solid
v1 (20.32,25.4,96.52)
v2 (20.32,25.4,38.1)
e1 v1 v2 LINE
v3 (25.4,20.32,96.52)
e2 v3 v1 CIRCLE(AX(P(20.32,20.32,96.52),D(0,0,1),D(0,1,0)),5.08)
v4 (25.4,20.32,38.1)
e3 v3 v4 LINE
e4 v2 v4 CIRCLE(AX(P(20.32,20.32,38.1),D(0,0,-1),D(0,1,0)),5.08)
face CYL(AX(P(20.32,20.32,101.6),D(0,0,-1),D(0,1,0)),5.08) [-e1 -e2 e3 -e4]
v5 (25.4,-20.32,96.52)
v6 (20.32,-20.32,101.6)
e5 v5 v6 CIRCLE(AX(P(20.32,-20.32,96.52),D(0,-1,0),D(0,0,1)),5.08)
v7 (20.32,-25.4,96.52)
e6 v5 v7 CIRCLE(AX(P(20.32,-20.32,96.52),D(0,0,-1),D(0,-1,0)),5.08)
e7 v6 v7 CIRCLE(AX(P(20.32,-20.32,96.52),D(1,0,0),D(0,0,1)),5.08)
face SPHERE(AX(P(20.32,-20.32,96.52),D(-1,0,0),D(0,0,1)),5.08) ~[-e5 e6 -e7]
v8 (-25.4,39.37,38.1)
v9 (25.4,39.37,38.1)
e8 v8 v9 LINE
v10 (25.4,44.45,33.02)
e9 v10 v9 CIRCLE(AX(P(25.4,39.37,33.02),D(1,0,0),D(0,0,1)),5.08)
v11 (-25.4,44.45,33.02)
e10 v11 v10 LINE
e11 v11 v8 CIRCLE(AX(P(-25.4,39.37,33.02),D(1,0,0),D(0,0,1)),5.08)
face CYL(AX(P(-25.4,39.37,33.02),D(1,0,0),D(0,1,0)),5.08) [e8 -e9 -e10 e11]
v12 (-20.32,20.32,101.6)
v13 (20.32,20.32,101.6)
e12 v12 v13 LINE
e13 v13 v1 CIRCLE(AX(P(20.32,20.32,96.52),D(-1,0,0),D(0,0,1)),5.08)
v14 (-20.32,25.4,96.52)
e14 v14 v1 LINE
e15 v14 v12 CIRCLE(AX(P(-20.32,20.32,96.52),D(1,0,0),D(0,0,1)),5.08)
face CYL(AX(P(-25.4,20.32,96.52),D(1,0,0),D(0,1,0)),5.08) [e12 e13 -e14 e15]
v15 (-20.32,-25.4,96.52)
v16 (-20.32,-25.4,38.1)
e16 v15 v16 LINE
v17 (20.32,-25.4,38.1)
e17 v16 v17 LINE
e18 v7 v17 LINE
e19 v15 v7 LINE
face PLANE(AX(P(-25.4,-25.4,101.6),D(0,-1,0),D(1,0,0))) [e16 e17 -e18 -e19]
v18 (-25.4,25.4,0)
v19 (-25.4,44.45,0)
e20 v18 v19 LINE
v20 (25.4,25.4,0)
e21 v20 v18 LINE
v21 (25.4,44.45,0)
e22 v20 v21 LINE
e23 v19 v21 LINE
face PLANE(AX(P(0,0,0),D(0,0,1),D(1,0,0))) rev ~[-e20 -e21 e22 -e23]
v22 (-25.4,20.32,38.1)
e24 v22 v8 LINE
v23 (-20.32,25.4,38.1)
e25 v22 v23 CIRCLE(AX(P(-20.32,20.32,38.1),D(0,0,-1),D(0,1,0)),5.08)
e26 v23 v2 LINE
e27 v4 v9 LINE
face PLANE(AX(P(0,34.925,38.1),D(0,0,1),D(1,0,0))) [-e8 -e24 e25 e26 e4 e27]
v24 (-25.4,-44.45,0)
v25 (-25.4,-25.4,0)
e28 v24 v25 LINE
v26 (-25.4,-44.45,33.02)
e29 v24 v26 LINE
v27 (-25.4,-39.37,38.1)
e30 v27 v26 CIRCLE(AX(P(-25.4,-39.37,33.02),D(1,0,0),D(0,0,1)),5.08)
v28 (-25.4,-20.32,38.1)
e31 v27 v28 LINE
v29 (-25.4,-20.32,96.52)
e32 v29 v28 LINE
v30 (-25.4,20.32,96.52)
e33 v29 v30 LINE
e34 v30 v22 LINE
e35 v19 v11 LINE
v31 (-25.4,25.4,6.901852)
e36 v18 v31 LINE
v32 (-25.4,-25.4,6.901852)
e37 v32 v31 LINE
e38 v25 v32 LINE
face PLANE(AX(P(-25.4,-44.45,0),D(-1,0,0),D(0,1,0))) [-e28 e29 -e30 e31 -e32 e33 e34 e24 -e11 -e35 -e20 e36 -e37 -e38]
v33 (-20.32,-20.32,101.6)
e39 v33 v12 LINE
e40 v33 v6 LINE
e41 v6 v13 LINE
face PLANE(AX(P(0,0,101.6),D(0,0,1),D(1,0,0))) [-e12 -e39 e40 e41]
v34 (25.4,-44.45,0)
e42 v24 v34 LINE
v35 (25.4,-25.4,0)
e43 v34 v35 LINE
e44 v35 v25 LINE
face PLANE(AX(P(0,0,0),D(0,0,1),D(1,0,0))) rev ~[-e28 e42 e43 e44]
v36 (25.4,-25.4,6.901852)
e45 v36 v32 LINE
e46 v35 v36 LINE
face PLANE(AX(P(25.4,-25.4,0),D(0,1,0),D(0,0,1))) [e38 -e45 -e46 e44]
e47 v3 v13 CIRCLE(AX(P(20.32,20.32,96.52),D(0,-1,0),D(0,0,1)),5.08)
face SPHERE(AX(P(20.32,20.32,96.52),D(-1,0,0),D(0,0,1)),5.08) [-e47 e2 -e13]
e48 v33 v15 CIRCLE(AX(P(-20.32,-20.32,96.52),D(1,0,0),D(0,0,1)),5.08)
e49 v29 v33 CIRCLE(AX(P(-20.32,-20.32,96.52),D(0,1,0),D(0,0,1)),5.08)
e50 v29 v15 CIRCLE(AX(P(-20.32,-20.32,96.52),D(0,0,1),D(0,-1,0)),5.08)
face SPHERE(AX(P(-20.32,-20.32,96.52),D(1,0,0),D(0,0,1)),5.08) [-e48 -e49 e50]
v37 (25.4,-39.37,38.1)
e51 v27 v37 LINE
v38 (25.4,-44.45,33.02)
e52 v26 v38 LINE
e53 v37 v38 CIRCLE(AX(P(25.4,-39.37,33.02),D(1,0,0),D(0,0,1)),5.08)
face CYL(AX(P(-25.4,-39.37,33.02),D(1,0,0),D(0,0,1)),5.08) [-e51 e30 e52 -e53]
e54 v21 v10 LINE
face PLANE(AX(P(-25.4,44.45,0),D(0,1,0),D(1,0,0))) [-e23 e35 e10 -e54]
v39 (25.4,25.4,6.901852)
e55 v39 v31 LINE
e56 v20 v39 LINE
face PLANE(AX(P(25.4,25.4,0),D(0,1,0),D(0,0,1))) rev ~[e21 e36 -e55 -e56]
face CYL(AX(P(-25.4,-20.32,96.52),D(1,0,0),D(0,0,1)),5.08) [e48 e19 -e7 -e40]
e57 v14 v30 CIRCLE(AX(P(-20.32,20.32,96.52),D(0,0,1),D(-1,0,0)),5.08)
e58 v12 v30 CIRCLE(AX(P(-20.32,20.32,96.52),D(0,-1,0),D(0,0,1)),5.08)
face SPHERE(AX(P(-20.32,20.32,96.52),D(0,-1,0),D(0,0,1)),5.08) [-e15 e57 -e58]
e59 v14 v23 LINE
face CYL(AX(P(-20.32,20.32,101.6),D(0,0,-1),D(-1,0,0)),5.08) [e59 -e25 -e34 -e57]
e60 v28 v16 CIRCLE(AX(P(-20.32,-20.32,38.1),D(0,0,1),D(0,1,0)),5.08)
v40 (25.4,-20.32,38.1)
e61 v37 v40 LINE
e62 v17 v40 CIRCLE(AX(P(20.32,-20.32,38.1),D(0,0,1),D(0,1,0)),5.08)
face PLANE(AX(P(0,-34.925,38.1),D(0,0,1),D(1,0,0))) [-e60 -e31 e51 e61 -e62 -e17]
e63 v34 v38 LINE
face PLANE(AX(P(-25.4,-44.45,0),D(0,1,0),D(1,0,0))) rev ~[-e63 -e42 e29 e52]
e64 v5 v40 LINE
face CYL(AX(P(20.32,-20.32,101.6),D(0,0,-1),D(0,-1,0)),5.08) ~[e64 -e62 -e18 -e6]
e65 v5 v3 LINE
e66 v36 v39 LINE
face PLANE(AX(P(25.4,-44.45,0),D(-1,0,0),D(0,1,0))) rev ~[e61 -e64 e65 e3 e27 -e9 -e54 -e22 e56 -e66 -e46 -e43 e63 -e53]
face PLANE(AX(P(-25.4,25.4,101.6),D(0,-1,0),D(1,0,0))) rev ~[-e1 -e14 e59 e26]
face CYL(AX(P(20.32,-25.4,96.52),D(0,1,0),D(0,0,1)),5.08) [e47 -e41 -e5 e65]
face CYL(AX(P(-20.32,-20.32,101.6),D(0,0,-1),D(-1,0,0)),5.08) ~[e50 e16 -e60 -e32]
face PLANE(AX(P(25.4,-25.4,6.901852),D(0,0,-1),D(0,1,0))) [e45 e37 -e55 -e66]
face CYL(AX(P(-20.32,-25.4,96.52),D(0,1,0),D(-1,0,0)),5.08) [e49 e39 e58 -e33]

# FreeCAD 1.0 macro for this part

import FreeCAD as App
import Part
import Sketcher
from FreeCAD import Vector
Q = App.Units.Quantity


def edges_at(feature, points):
    """Names of the edges that pass closest to the given points."""
    edges = feature.Shape.Edges
    near = lambda p: min(range(len(edges)), key=lambda i: edges[i].distToShape(Part.Vertex(*p))[0])
    return sorted({f"Edge{near(p) + 1}" for p in points})

doc = App.newDocument("Part")
body = doc.addObject("PartDesign::Body", "Body")

sketch1 = body.newObject("Sketcher::SketchObject", "Sketch")
sketch1.AttachmentSupport = (doc.getObject("XY_Plane"), [""])
sketch1.MapMode = "FlatFace"
sketch1.addGeometry([
    Part.LineSegment(Vector(-25.4, 44.45, 0), Vector(-25.4, -44.45, 0)),
    Part.LineSegment(Vector(-25.4, -44.45, 0), Vector(25.4, -44.45, 0)),
    Part.LineSegment(Vector(25.4, -44.45, 0), Vector(25.4, 44.45, 0)),
    Part.LineSegment(Vector(25.4, 44.45, 0), Vector(-25.4, 44.45, 0)),
], False)
sketch1.addConstraint([
    Sketcher.Constraint("Coincident", 0, 2, 1, 1),
    Sketcher.Constraint("Coincident", 1, 2, 2, 1),
    Sketcher.Constraint("Coincident", 2, 2, 3, 1),
    Sketcher.Constraint("Coincident", 3, 2, 0, 1),
    Sketcher.Constraint("Vertical", 0),
    Sketcher.Constraint("Horizontal", 1),
    Sketcher.Constraint("Vertical", 2),
    Sketcher.Constraint("Horizontal", 3),
    Sketcher.Constraint("Symmetric", 0, 2, 2, 2, -1, 1),
    Sketcher.Constraint("DistanceX", 1, 1, 1, 2, Q("2 in")),
    Sketcher.Constraint("DistanceY", 0, 2, 0, 1, Q("3.5 in")),
])
pad1 = body.newObject("PartDesign::Pad", "Pad")
pad1.Profile = sketch1
pad1.Length = Q("4 in")

sketch2 = body.newObject("Sketcher::SketchObject", "Sketch001")
sketch2.AttachmentSupport = (doc.getObject("XY_Plane"), [""])
sketch2.MapMode = "FlatFace"
sketch2.AttachmentOffset = App.Placement(Vector(0, 0, 4 * 25.4), App.Rotation())
sketch2.addGeometry([
    Part.LineSegment(Vector(-25.4, -25.4, 0), Vector(-25.4, -44.45, 0)),
    Part.LineSegment(Vector(-25.4, -44.45, 0), Vector(25.4, -44.45, 0)),
    Part.LineSegment(Vector(25.4, -44.45, 0), Vector(25.4, -25.4, 0)),
    Part.LineSegment(Vector(25.4, -25.4, 0), Vector(-25.4, -25.4, 0)),
    Part.LineSegment(Vector(-25.4, 44.45, 0), Vector(-25.4, 25.4, 0)),
    Part.LineSegment(Vector(-25.4, 25.4, 0), Vector(25.4, 25.4, 0)),
    Part.LineSegment(Vector(25.4, 25.4, 0), Vector(25.4, 44.45, 0)),
    Part.LineSegment(Vector(25.4, 44.45, 0), Vector(-25.4, 44.45, 0)),
], False)
sketch2.addConstraint([
    Sketcher.Constraint("Coincident", 0, 2, 1, 1),
    Sketcher.Constraint("Coincident", 1, 2, 2, 1),
    Sketcher.Constraint("Coincident", 2, 2, 3, 1),
    Sketcher.Constraint("Coincident", 3, 2, 0, 1),
    Sketcher.Constraint("Coincident", 4, 2, 5, 1),
    Sketcher.Constraint("Coincident", 5, 2, 6, 1),
    Sketcher.Constraint("Coincident", 6, 2, 7, 1),
    Sketcher.Constraint("Coincident", 7, 2, 4, 1),
    Sketcher.Constraint("Vertical", 0),
    Sketcher.Constraint("Horizontal", 1),
    Sketcher.Constraint("Vertical", 2),
    Sketcher.Constraint("Horizontal", 3),
    Sketcher.Constraint("Vertical", 4),
    Sketcher.Constraint("Horizontal", 5),
    Sketcher.Constraint("Vertical", 6),
    Sketcher.Constraint("Horizontal", 7),
    Sketcher.Constraint("Symmetric", 2, 2, 4, 2, -1, 1),
    Sketcher.Constraint("Symmetric", 0, 2, 6, 2, -1, 1),
    Sketcher.Constraint("Vertical", 3, 2, 4, 2),
    Sketcher.Constraint("DistanceX", 1, 1, 1, 2, Q("2 in")),
    Sketcher.Constraint("DistanceY", 2, 2, -1, 1, Q("1 in")),
    Sketcher.Constraint("DistanceY", 0, 2, 0, 1, Q("0.75 in")),
])
pocket1 = body.newObject("PartDesign::Pocket", "Pocket")
pocket1.Profile = sketch2
pocket1.Length = Q("2.5 in")

sketch3 = body.newObject("Sketcher::SketchObject", "Sketch002")
sketch3.AttachmentSupport = (doc.getObject("YZ_Plane"), [""])
sketch3.MapMode = "FlatFace"
sketch3.AttachmentOffset = App.Placement(Vector(0, 0, 1 * 25.4), App.Rotation())
sketch3.addGeometry([
    Part.LineSegment(Vector(-25.4, 6.901852, 0), Vector(-25.4, 0, 0)),
    Part.LineSegment(Vector(-25.4, 0, 0), Vector(25.4, 0, 0)),
    Part.LineSegment(Vector(25.4, 0, 0), Vector(25.4, 6.901852, 0)),
    Part.LineSegment(Vector(25.4, 6.901852, 0), Vector(-25.4, 6.901852, 0)),
], False)
sketch3.addConstraint([
    Sketcher.Constraint("Coincident", 0, 2, 1, 1),
    Sketcher.Constraint("Coincident", 1, 2, 2, 1),
    Sketcher.Constraint("Coincident", 2, 2, 3, 1),
    Sketcher.Constraint("Coincident", 3, 2, 0, 1),
    Sketcher.Constraint("Vertical", 0),
    Sketcher.Constraint("Horizontal", 1),
    Sketcher.Constraint("Vertical", 2),
    Sketcher.Constraint("Horizontal", 3),
    Sketcher.Constraint("Symmetric", 0, 2, 1, 2, -1, 1),
    Sketcher.Constraint("DistanceX", 1, 1, 1, 2, Q("2 in")),
    Sketcher.Constraint("DistanceY", 0, 2, 0, 1, 6.901852),
])
pocket2 = body.newObject("PartDesign::Pocket", "Pocket001")
pocket2.Profile = sketch3
pocket2.Length = Q("2 in")
doc.recompute()

fillet = body.newObject("PartDesign::Fillet", "Fillet")
fillet.Base = (pocket2, edges_at(pocket2, [
    (0, -25.4, 101.6),
    (-25.4, 0, 101.6),
    (0, 25.4, 101.6),
    (25.4, 0, 101.6),
    (25.4, -25.4, 69.85),
    (25.4, 25.4, 69.85),
    (-25.4, 25.4, 69.85),
    (-25.4, -25.4, 69.85),
    (0, -44.45, 38.1),
    (0, 44.45, 38.1),
]))
fillet.Radius = Q("0.2 in")

doc.recompute()
